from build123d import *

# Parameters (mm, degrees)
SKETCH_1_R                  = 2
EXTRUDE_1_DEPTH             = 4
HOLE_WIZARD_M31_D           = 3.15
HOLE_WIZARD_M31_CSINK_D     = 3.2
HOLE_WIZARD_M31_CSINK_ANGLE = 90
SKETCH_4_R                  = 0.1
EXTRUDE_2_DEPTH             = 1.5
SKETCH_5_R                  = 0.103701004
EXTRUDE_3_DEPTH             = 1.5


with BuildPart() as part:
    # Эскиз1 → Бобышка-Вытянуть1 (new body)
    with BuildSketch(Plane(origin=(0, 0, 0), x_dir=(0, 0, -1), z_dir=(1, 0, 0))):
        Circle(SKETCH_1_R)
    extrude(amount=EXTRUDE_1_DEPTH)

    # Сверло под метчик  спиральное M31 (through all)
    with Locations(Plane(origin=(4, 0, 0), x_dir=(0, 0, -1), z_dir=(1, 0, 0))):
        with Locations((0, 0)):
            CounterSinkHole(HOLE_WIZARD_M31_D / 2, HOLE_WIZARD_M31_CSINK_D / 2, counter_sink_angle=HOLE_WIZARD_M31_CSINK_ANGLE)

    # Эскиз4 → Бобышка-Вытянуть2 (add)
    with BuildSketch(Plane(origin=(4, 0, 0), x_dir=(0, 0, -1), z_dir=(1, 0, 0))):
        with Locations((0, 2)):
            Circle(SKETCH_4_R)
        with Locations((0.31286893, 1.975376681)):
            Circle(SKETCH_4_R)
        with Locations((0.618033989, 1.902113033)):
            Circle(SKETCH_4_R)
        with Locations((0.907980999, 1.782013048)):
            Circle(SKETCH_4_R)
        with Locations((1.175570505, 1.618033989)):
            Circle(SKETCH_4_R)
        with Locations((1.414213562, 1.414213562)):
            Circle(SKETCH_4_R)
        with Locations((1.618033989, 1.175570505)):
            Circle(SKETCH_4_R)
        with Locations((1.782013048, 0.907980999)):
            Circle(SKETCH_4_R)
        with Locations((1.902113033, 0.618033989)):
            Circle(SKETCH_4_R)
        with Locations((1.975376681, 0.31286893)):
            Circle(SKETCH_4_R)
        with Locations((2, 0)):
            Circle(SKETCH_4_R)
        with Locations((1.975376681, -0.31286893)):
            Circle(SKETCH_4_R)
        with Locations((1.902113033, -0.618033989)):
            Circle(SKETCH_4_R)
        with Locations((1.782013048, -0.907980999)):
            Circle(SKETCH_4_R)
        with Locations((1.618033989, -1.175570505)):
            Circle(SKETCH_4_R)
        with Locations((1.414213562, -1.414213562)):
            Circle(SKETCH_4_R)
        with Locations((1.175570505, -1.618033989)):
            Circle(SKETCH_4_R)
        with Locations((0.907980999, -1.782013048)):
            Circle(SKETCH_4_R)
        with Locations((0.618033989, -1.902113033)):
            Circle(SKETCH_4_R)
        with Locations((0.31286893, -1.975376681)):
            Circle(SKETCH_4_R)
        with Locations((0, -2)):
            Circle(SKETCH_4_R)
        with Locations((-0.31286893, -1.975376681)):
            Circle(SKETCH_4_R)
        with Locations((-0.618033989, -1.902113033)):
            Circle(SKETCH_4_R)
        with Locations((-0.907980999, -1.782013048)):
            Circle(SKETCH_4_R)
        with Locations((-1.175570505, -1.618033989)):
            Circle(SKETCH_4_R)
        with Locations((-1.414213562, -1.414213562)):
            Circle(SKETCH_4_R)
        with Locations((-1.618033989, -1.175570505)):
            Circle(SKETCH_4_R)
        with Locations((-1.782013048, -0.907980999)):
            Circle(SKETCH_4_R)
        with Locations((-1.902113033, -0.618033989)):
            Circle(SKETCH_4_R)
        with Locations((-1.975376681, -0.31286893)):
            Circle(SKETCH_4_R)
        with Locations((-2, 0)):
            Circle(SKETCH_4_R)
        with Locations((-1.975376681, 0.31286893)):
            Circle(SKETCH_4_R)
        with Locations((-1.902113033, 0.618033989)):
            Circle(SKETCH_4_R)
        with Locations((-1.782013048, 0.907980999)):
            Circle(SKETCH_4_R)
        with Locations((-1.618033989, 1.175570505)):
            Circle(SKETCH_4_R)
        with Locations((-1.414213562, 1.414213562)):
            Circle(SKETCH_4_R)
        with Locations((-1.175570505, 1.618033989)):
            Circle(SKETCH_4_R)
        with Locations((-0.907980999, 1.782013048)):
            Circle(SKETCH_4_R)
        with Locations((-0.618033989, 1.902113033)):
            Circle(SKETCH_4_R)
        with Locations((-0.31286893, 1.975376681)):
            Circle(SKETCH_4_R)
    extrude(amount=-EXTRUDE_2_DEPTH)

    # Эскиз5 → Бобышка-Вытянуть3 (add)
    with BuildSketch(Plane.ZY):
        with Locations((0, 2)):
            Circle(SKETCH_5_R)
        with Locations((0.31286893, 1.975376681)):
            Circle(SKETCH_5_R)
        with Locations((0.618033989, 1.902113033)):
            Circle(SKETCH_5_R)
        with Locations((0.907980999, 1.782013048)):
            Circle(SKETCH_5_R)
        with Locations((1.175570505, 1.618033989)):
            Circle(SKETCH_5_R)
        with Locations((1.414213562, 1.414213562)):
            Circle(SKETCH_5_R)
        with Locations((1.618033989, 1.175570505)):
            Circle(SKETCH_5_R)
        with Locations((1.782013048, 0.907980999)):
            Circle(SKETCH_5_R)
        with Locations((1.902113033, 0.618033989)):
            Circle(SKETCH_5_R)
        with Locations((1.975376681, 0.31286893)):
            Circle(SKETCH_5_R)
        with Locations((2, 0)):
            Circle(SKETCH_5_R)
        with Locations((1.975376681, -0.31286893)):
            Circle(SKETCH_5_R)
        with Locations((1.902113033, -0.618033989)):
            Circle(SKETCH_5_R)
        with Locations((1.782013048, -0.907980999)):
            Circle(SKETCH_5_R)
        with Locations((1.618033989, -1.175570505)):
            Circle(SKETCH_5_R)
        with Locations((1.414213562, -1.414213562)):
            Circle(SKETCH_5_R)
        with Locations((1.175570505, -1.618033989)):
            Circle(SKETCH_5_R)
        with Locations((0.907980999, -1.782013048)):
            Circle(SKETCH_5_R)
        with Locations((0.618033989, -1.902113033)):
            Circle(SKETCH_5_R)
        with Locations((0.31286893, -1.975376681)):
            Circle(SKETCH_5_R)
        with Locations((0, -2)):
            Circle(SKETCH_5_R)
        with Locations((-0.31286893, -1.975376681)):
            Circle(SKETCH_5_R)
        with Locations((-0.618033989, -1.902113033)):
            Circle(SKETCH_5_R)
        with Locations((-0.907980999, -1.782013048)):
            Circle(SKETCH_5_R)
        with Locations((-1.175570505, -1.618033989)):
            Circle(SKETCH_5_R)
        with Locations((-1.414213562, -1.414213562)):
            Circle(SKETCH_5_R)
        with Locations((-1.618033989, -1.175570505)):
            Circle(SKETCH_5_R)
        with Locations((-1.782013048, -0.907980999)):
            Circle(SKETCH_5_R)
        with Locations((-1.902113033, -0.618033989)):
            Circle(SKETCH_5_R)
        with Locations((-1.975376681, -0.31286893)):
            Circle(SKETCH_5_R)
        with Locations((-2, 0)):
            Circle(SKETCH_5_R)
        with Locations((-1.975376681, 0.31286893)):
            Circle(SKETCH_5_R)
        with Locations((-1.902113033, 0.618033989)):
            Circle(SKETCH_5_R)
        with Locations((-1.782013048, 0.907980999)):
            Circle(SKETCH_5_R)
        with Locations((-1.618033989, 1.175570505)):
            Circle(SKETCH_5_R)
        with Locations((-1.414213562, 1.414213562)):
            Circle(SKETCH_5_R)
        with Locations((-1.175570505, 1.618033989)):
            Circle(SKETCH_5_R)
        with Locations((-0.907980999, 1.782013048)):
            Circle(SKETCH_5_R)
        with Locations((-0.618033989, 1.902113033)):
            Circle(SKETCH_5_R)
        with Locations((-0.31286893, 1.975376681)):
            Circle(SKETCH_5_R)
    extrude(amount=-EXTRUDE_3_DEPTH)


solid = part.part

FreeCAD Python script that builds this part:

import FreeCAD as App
import Part
import Sketcher
from FreeCAD import Vector

doc = App.newDocument("Part")
body = doc.addObject("PartDesign::Body", "Body")

# Sketch on YZ plane
sketch1 = body.newObject("Sketcher::SketchObject", "Sketch")
sketch1.AttachmentSupport = (doc.getObject("YZ_Plane"), [""])
sketch1.MapMode = "FlatFace"
sketch1.addGeometry(Part.Circle(Vector(0, 0, 0), Vector(0, 0, 1), 2), False)
sketch1.addConstraint(Sketcher.Constraint("Coincident", 0, 3, -1, 1))
sketch1.addConstraint(Sketcher.Constraint("Diameter", 0, 4.0))
pad1 = body.newObject("PartDesign::Pad", "Pad")
pad1.Profile = sketch1
pad1.Length = 4

# Sketch on YZ plane
sketch2 = body.newObject("Sketcher::SketchObject", "Sketch001")
sketch2.AttachmentSupport = (doc.getObject("YZ_Plane"), [""])
sketch2.MapMode = "FlatFace"
sketch2.AttachmentOffset = App.Placement(Vector(0, 0, 4), App.Rotation())
sketch2.addGeometry(Part.Circle(Vector(0, 0, 0), Vector(0, 0, 1), 1.575), False)
sketch2.addConstraint(Sketcher.Constraint("Coincident", 0, 3, -1, 1))
sketch2.addConstraint(Sketcher.Constraint("Diameter", 0, 3.15))
doc.recompute()
hole = body.newObject("PartDesign::Hole", "Hole")
hole.Profile = sketch2
hole.ThreadType = "None"
hole.Diameter = 3.15
hole.DepthType = "ThroughAll"
hole.HoleCutType = "Countersink"
hole.HoleCutDiameter = 3.2
hole.HoleCutCountersinkAngle = 90

# Sketch on YZ plane
sketch3 = body.newObject("Sketcher::SketchObject", "Sketch002")
sketch3.AttachmentSupport = (doc.getObject("YZ_Plane"), [""])
sketch3.MapMode = "FlatFace"
sketch3.AttachmentOffset = App.Placement(Vector(0, 0, 4), App.Rotation())
sketch3.addGeometry(Part.Circle(Vector(2, 0, 0), Vector(0, 0, 1), 0.1), False)
sketch3.addGeometry(Part.Circle(Vector(1.975377, -0.312869, 0), Vector(0, 0, 1), 0.1), False)
sketch3.addGeometry(Part.Circle(Vector(1.902113, -0.618034, 0), Vector(0, 0, 1), 0.1), False)
sketch3.addGeometry(Part.Circle(Vector(1.782013, -0.907981, 0), Vector(0, 0, 1), 0.1), False)
sketch3.addGeometry(Part.Circle(Vector(1.618034, -1.175571, 0), Vector(0, 0, 1), 0.1), False)
sketch3.addGeometry(Part.Circle(Vector(1.414214, -1.414214, 0), Vector(0, 0, 1), 0.1), False)
sketch3.addGeometry(Part.Circle(Vector(1.175571, -1.618034, 0), Vector(0, 0, 1), 0.1), False)
sketch3.addGeometry(Part.Circle(Vector(0.907981, -1.782013, 0), Vector(0, 0, 1), 0.1), False)
sketch3.addGeometry(Part.Circle(Vector(0.618034, -1.902113, 0), Vector(0, 0, 1), 0.1), False)
sketch3.addGeometry(Part.Circle(Vector(0.312869, -1.975377, 0), Vector(0, 0, 1), 0.1), False)
sketch3.addGeometry(Part.Circle(Vector(0, -2, 0), Vector(0, 0, 1), 0.1), False)
sketch3.addGeometry(Part.Circle(Vector(-0.312869, -1.975377, 0), Vector(0, 0, 1), 0.1), False)
sketch3.addGeometry(Part.Circle(Vector(-0.618034, -1.902113, 0), Vector(0, 0, 1), 0.1), False)
sketch3.addGeometry(Part.Circle(Vector(-0.907981, -1.782013, 0), Vector(0, 0, 1), 0.1), False)
sketch3.addGeometry(Part.Circle(Vector(-1.175571, -1.618034, 0), Vector(0, 0, 1), 0.1), False)
sketch3.addGeometry(Part.Circle(Vector(-1.414214, -1.414214, 0), Vector(0, 0, 1), 0.1), False)
sketch3.addGeometry(Part.Circle(Vector(-1.618034, -1.175571, 0), Vector(0, 0, 1), 0.1), False)
sketch3.addGeometry(Part.Circle(Vector(-1.782013, -0.907981, 0), Vector(0, 0, 1), 0.1), False)
sketch3.addGeometry(Part.Circle(Vector(-1.902113, -0.618034, 0), Vector(0, 0, 1), 0.1), False)
sketch3.addGeometry(Part.Circle(Vector(-1.975377, -0.312869, 0), Vector(0, 0, 1), 0.1), False)
sketch3.addGeometry(Part.Circle(Vector(-2, 0, 0), Vector(0, 0, 1), 0.1), False)
sketch3.addGeometry(Part.Circle(Vector(-1.975377, 0.312869, 0), Vector(0, 0, 1), 0.1), False)
sketch3.addGeometry(Part.Circle(Vector(-1.902113, 0.618034, 0), Vector(0, 0, 1), 0.1), False)
sketch3.addGeometry(Part.Circle(Vector(-1.782013, 0.907981, 0), Vector(0, 0, 1), 0.1), False)
sketch3.addGeometry(Part.Circle(Vector(-1.618034, 1.175571, 0), Vector(0, 0, 1), 0.1), False)
sketch3.addGeometry(Part.Circle(Vector(-1.414214, 1.414214, 0), Vector(0, 0, 1), 0.1), False)
sketch3.addGeometry(Part.Circle(Vector(-1.175571, 1.618034, 0), Vector(0, 0, 1), 0.1), False)
sketch3.addGeometry(Part.Circle(Vector(-0.907981, 1.782013, 0), Vector(0, 0, 1), 0.1), False)
sketch3.addGeometry(Part.Circle(Vector(-0.618034, 1.902113, 0), Vector(0, 0, 1), 0.1), False)
sketch3.addGeometry(Part.Circle(Vector(-0.312869, 1.975377, 0), Vector(0, 0, 1), 0.1), False)
sketch3.addGeometry(Part.Circle(Vector(0, 2, 0), Vector(0, 0, 1), 0.1), False)
sketch3.addGeometry(Part.Circle(Vector(0.312869, 1.975377, 0), Vector(0, 0, 1), 0.1), False)
sketch3.addGeometry(Part.Circle(Vector(0.618034, 1.902113, 0), Vector(0, 0, 1), 0.1), False)
sketch3.addGeometry(Part.Circle(Vector(0.907981, 1.782013, 0), Vector(0, 0, 1), 0.1), False)
sketch3.addGeometry(Part.Circle(Vector(1.175571, 1.618034, 0), Vector(0, 0, 1), 0.1), False)
sketch3.addGeometry(Part.Circle(Vector(1.414214, 1.414214, 0), Vector(0, 0, 1), 0.1), False)
sketch3.addGeometry(Part.Circle(Vector(1.618034, 1.175571, 0), Vector(0, 0, 1), 0.1), False)
sketch3.addGeometry(Part.Circle(Vector(1.782013, 0.907981, 0), Vector(0, 0, 1), 0.1), False)
sketch3.addGeometry(Part.Circle(Vector(1.902113, 0.618034, 0), Vector(0, 0, 1), 0.1), False)
sketch3.addGeometry(Part.Circle(Vector(1.975377, 0.312869, 0), Vector(0, 0, 1), 0.1), False)
sketch3.addConstraint(Sketcher.Constraint("Equal", 0, 1))
sketch3.addConstraint(Sketcher.Constraint("Equal", 1, 2))
sketch3.addConstraint(Sketcher.Constraint("Equal", 2, 3))
sketch3.addConstraint(Sketcher.Constraint("Equal", 3, 4))
sketch3.addConstraint(Sketcher.Constraint("Equal", 4, 5))
sketch3.addConstraint(Sketcher.Constraint("Equal", 5, 6))
sketch3.addConstraint(Sketcher.Constraint("Equal", 6, 7))
sketch3.addConstraint(Sketcher.Constraint("Equal", 7, 8))
sketch3.addConstraint(Sketcher.Constraint("Equal", 8, 9))
sketch3.addConstraint(Sketcher.Constraint("Equal", 9, 10))
sketch3.addConstraint(Sketcher.Constraint("Equal", 10, 11))
sketch3.addConstraint(Sketcher.Constraint("Equal", 11, 12))
sketch3.addConstraint(Sketcher.Constraint("Equal", 12, 13))
sketch3.addConstraint(Sketcher.Constraint("Equal", 13, 14))
sketch3.addConstraint(Sketcher.Constraint("Equal", 14, 15))
sketch3.addConstraint(Sketcher.Constraint("Equal", 15, 16))
sketch3.addConstraint(Sketcher.Constraint("Equal", 16, 17))
sketch3.addConstraint(Sketcher.Constraint("Equal", 17, 18))
sketch3.addConstraint(Sketcher.Constraint("Equal", 18, 19))
sketch3.addConstraint(Sketcher.Constraint("Equal", 19, 20))
sketch3.addConstraint(Sketcher.Constraint("Equal", 20, 21))
sketch3.addConstraint(Sketcher.Constraint("Equal", 21, 22))
sketch3.addConstraint(Sketcher.Constraint("Equal", 22, 23))
sketch3.addConstraint(Sketcher.Constraint("Equal", 23, 24))
sketch3.addConstraint(Sketcher.Constraint("Equal", 24, 25))
sketch3.addConstraint(Sketcher.Constraint("Equal", 25, 26))
sketch3.addConstraint(Sketcher.Constraint("Equal", 26, 27))
sketch3.addConstraint(Sketcher.Constraint("Equal", 27, 28))
sketch3.addConstraint(Sketcher.Constraint("Equal", 28, 29))
sketch3.addConstraint(Sketcher.Constraint("Equal", 29, 30))
sketch3.addConstraint(Sketcher.Constraint("Equal", 30, 31))
sketch3.addConstraint(Sketcher.Constraint("Equal", 31, 32))
sketch3.addConstraint(Sketcher.Constraint("Equal", 32, 33))
sketch3.addConstraint(Sketcher.Constraint("Equal", 33, 34))
sketch3.addConstraint(Sketcher.Constraint("Equal", 34, 35))
sketch3.addConstraint(Sketcher.Constraint("Equal", 35, 36))
sketch3.addConstraint(Sketcher.Constraint("Equal", 36, 37))
sketch3.addConstraint(Sketcher.Constraint("Equal", 37, 38))
sketch3.addConstraint(Sketcher.Constraint("Equal", 38, 39))
sketch3.addConstraint(Sketcher.Constraint("Symmetric", 0, 3, 20, 3, -1, 1))
sketch3.addConstraint(Sketcher.Constraint("Symmetric", 1, 3, 21, 3, -1, 1))
sketch3.addConstraint(Sketcher.Constraint("Symmetric", 2, 3, 22, 3, -1, 1))
sketch3.addConstraint(Sketcher.Constraint("Symmetric", 3, 3, 23, 3, -1, 1))
sketch3.addConstraint(Sketcher.Constraint("Symmetric", 4, 3, 24, 3, -1, 1))
sketch3.addConstraint(Sketcher.Constraint("Symmetric", 5, 3, 25, 3, -1, 1))
sketch3.addConstraint(Sketcher.Constraint("Symmetric", 6, 3, 26, 3, -1, 1))
sketch3.addConstraint(Sketcher.Constraint("Symmetric", 7, 3, 27, 3, -1, 1))
sketch3.addConstraint(Sketcher.Constraint("Symmetric", 8, 3, 28, 3, -1, 1))
sketch3.addConstraint(Sketcher.Constraint("Symmetric", 9, 3, 29, 3, -1, 1))
sketch3.addConstraint(Sketcher.Constraint("Symmetric", 10, 3, 30, 3, -1, 1))
sketch3.addConstraint(Sketcher.Constraint("Symmetric", 11, 3, 31, 3, -1, 1))
sketch3.addConstraint(Sketcher.Constraint("Symmetric", 12, 3, 32, 3, -1, 1))
sketch3.addConstraint(Sketcher.Constraint("Symmetric", 13, 3, 33, 3, -1, 1))
sketch3.addConstraint(Sketcher.Constraint("Symmetric", 14, 3, 34, 3, -1, 1))
sketch3.addConstraint(Sketcher.Constraint("Symmetric", 15, 3, 35, 3, -1, 1))
sketch3.addConstraint(Sketcher.Constraint("Symmetric", 16, 3, 36, 3, -1, 1))
sketch3.addConstraint(Sketcher.Constraint("Symmetric", 17, 3, 37, 3, -1, 1))
sketch3.addConstraint(Sketcher.Constraint("Symmetric", 18, 3, 38, 3, -1, 1))
sketch3.addConstraint(Sketcher.Constraint("Symmetric", 19, 3, 39, 3, -1, 1))
sketch3.addConstraint(Sketcher.Constraint("Symmetric", 9, 3, 11, 3, -2))
sketch3.addConstraint(Sketcher.Constraint("Symmetric", 8, 3, 12, 3, -2))
sketch3.addConstraint(Sketcher.Constraint("Symmetric", 7, 3, 13, 3, -2))
sketch3.addConstraint(Sketcher.Constraint("Symmetric", 6, 3, 14, 3, -2))
sketch3.addConstraint(Sketcher.Constraint("Symmetric", 5, 3, 15, 3, -2))
sketch3.addConstraint(Sketcher.Constraint("Symmetric", 4, 3, 16, 3, -2))
sketch3.addConstraint(Sketcher.Constraint("Symmetric", 3, 3, 17, 3, -2))
sketch3.addConstraint(Sketcher.Constraint("Symmetric", 2, 3, 18, 3, -2))
sketch3.addConstraint(Sketcher.Constraint("Symmetric", 1, 3, 19, 3, -2))
sketch3.addConstraint(Sketcher.Constraint("PointOnObject", 0, 3, -1))
sketch3.addConstraint(Sketcher.Constraint("PointOnObject", 10, 3, -2))
sketch3.addConstraint(Sketcher.Constraint("Diameter", 0, 0.2))
sketch3.addConstraint(Sketcher.Constraint("DistanceX", -1, 1, 0, 3, 2.0))
sketch3.addConstraint(Sketcher.Constraint("DistanceY", 10, 3, -1, 1, 2.0))
sketch3.addConstraint(Sketcher.Constraint("DistanceY", 6, 3, 2, 3, 1.0))
sketch3.addConstraint(Sketcher.Constraint("DistanceX", 8, 3, 4, 3, 1.0))
sketch3.addConstraint(Sketcher.Constraint("DistanceX", 3, 3, 2, 3, 0.1201))
sketch3.addConstraint(Sketcher.Constraint("DistanceY", 4, 3, 1, 3, 0.862702))
sketch3.addConstraint(Sketcher.Constraint("DistanceX", 5, 3, 3, 3, 0.367799))
sketch3.addConstraint(Sketcher.Constraint("DistanceY", 7, 3, 5, 3, 0.367799))
sketch3.addConstraint(Sketcher.Constraint("DistanceY", 8, 3, 7, 3, 0.1201))
sketch3.addConstraint(Sketcher.Constraint("DistanceX", 9, 3, 6, 3, 0.862702))
sketch3.addConstraint(Sketcher.Constraint("DistanceY", 1, 3, -1, 1, 0.312869))
sketch3.addConstraint(Sketcher.Constraint("DistanceY", 3, 3, -1, 1, 0.907981))
sketch3.addConstraint(Sketcher.Constraint("DistanceX", -1, 1, 6, 3, 1.175571))
sketch3.addConstraint(Sketcher.Constraint("DistanceX", -1, 1, 7, 3, 0.907981))
sketch3.addConstraint(Sketcher.Constraint("DistanceX", 4, 3, 3, 3, 0.163979))
sketch3.addConstraint(Sketcher.Constraint("DistanceY", 5, 3, 2, 3, 0.79618))
sketch3.addConstraint(Sketcher.Constraint("DistanceX", -1, 1, 1, 3, 1.975377))
sketch3.addConstraint(Sketcher.Constraint("DistanceX", -1, 1, 2, 3, 1.902113))
sketch3.addConstraint(Sketcher.Constraint("DistanceY", 2, 3, -1, 1, 0.618034))
sketch3.addConstraint(Sketcher.Constraint("DistanceY", 9, 3, -1, 1, 1.975377))
pad2 = body.newObject("PartDesign::Pad", "Pad001")
pad2.Profile = sketch3
pad2.Length = 1.5
pad2.Reversed = True

# Sketch on YZ plane
sketch4 = body.newObject("Sketcher::SketchObject", "Sketch003")
sketch4.AttachmentSupport = (doc.getObject("YZ_Plane"), [""])
sketch4.MapMode = "FlatFace"
sketch4.addGeometry(Part.Circle(Vector(2, 0, 0), Vector(0, 0, 1), 0.103701), False)
sketch4.addGeometry(Part.Circle(Vector(1.975377, 0.312869, 0), Vector(0, 0, 1), 0.103701), False)
sketch4.addGeometry(Part.Circle(Vector(1.902113, 0.618034, 0), Vector(0, 0, 1), 0.103701), False)
sketch4.addGeometry(Part.Circle(Vector(1.782013, 0.907981, 0), Vector(0, 0, 1), 0.103701), False)
sketch4.addGeometry(Part.Circle(Vector(1.618034, 1.175571, 0), Vector(0, 0, 1), 0.103701), False)
sketch4.addGeometry(Part.Circle(Vector(1.414214, 1.414214, 0), Vector(0, 0, 1), 0.103701), False)
sketch4.addGeometry(Part.Circle(Vector(1.175571, 1.618034, 0), Vector(0, 0, 1), 0.103701), False)
sketch4.addGeometry(Part.Circle(Vector(0.907981, 1.782013, 0), Vector(0, 0, 1), 0.103701), False)
sketch4.addGeometry(Part.Circle(Vector(0.618034, 1.902113, 0), Vector(0, 0, 1), 0.103701), False)
sketch4.addGeometry(Part.Circle(Vector(0.312869, 1.975377, 0), Vector(0, 0, 1), 0.103701), False)
sketch4.addGeometry(Part.Circle(Vector(0, 2, 0), Vector(0, 0, 1), 0.103701), False)
sketch4.addGeometry(Part.Circle(Vector(-0.312869, 1.975377, 0), Vector(0, 0, 1), 0.103701), False)
sketch4.addGeometry(Part.Circle(Vector(-0.618034, 1.902113, 0), Vector(0, 0, 1), 0.103701), False)
sketch4.addGeometry(Part.Circle(Vector(-0.907981, 1.782013, 0), Vector(0, 0, 1), 0.103701), False)
sketch4.addGeometry(Part.Circle(Vector(-1.175571, 1.618034, 0), Vector(0, 0, 1), 0.103701), False)
sketch4.addGeometry(Part.Circle(Vector(-1.414214, 1.414214, 0), Vector(0, 0, 1), 0.103701), False)
sketch4.addGeometry(Part.Circle(Vector(-1.618034, 1.175571, 0), Vector(0, 0, 1), 0.103701), False)
sketch4.addGeometry(Part.Circle(Vector(-1.782013, 0.907981, 0), Vector(0, 0, 1), 0.103701), False)
sketch4.addGeometry(Part.Circle(Vector(-1.902113, 0.618034, 0), Vector(0, 0, 1), 0.103701), False)
sketch4.addGeometry(Part.Circle(Vector(-1.975377, 0.312869, 0), Vector(0, 0, 1), 0.103701), False)
sketch4.addGeometry(Part.Circle(Vector(-2, 0, 0), Vector(0, 0, 1), 0.103701), False)
sketch4.addGeometry(Part.Circle(Vector(-1.975377, -0.312869, 0), Vector(0, 0, 1), 0.103701), False)
sketch4.addGeometry(Part.Circle(Vector(-1.902113, -0.618034, 0), Vector(0, 0, 1), 0.103701), False)
sketch4.addGeometry(Part.Circle(Vector(-1.782013, -0.907981, 0), Vector(0, 0, 1), 0.103701), False)
sketch4.addGeometry(Part.Circle(Vector(-1.618034, -1.175571, 0), Vector(0, 0, 1), 0.103701), False)
sketch4.addGeometry(Part.Circle(Vector(-1.414214, -1.414214, 0), Vector(0, 0, 1), 0.103701), False)
sketch4.addGeometry(Part.Circle(Vector(-1.175571, -1.618034, 0), Vector(0, 0, 1), 0.103701), False)
sketch4.addGeometry(Part.Circle(Vector(-0.907981, -1.782013, 0), Vector(0, 0, 1), 0.103701), False)
sketch4.addGeometry(Part.Circle(Vector(-0.618034, -1.902113, 0), Vector(0, 0, 1), 0.103701), False)
sketch4.addGeometry(Part.Circle(Vector(-0.312869, -1.975377, 0), Vector(0, 0, 1), 0.103701), False)
sketch4.addGeometry(Part.Circle(Vector(0, -2, 0), Vector(0, 0, 1), 0.103701), False)
sketch4.addGeometry(Part.Circle(Vector(0.312869, -1.975377, 0), Vector(0, 0, 1), 0.103701), False)
sketch4.addGeometry(Part.Circle(Vector(0.618034, -1.902113, 0), Vector(0, 0, 1), 0.103701), False)
sketch4.addGeometry(Part.Circle(Vector(0.907981, -1.782013, 0), Vector(0, 0, 1), 0.103701), False)
sketch4.addGeometry(Part.Circle(Vector(1.175571, -1.618034, 0), Vector(0, 0, 1), 0.103701), False)
sketch4.addGeometry(Part.Circle(Vector(1.414214, -1.414214, 0), Vector(0, 0, 1), 0.103701), False)
sketch4.addGeometry(Part.Circle(Vector(1.618034, -1.175571, 0), Vector(0, 0, 1), 0.103701), False)
sketch4.addGeometry(Part.Circle(Vector(1.782013, -0.907981, 0), Vector(0, 0, 1), 0.103701), False)
sketch4.addGeometry(Part.Circle(Vector(1.902113, -0.618034, 0), Vector(0, 0, 1), 0.103701), False)
sketch4.addGeometry(Part.Circle(Vector(1.975377, -0.312869, 0), Vector(0, 0, 1), 0.103701), False)
sketch4.addConstraint(Sketcher.Constraint("Equal", 0, 1))
sketch4.addConstraint(Sketcher.Constraint("Equal", 1, 2))
sketch4.addConstraint(Sketcher.Constraint("Equal", 2, 3))
sketch4.addConstraint(Sketcher.Constraint("Equal", 3, 4))
sketch4.addConstraint(Sketcher.Constraint("Equal", 4, 5))
sketch4.addConstraint(Sketcher.Constraint("Equal", 5, 6))
sketch4.addConstraint(Sketcher.Constraint("Equal", 6, 7))
sketch4.addConstraint(Sketcher.Constraint("Equal", 7, 8))
sketch4.addConstraint(Sketcher.Constraint("Equal", 8, 9))
sketch4.addConstraint(Sketcher.Constraint("Equal", 9, 10))
sketch4.addConstraint(Sketcher.Constraint("Equal", 10, 11))
sketch4.addConstraint(Sketcher.Constraint("Equal", 11, 12))
sketch4.addConstraint(Sketcher.Constraint("Equal", 12, 13))
sketch4.addConstraint(Sketcher.Constraint("Equal", 13, 14))
sketch4.addConstraint(Sketcher.Constraint("Equal", 14, 15))
sketch4.addConstraint(Sketcher.Constraint("Equal", 15, 16))
sketch4.addConstraint(Sketcher.Constraint("Equal", 16, 17))
sketch4.addConstraint(Sketcher.Constraint("Equal", 17, 18))
sketch4.addConstraint(Sketcher.Constraint("Equal", 18, 19))
sketch4.addConstraint(Sketcher.Constraint("Equal", 19, 20))
sketch4.addConstraint(Sketcher.Constraint("Equal", 20, 21))
sketch4.addConstraint(Sketcher.Constraint("Equal", 21, 22))
sketch4.addConstraint(Sketcher.Constraint("Equal", 22, 23))
sketch4.addConstraint(Sketcher.Constraint("Equal", 23, 24))
sketch4.addConstraint(Sketcher.Constraint("Equal", 24, 25))
sketch4.addConstraint(Sketcher.Constraint("Equal", 25, 26))
sketch4.addConstraint(Sketcher.Constraint("Equal", 26, 27))
sketch4.addConstraint(Sketcher.Constraint("Equal", 27, 28))
sketch4.addConstraint(Sketcher.Constraint("Equal", 28, 29))
sketch4.addConstraint(Sketcher.Constraint("Equal", 29, 30))
sketch4.addConstraint(Sketcher.Constraint("Equal", 30, 31))
sketch4.addConstraint(Sketcher.Constraint("Equal", 31, 32))
sketch4.addConstraint(Sketcher.Constraint("Equal", 32, 33))
sketch4.addConstraint(Sketcher.Constraint("Equal", 33, 34))
sketch4.addConstraint(Sketcher.Constraint("Equal", 34, 35))
sketch4.addConstraint(Sketcher.Constraint("Equal", 35, 36))
sketch4.addConstraint(Sketcher.Constraint("Equal", 36, 37))
sketch4.addConstraint(Sketcher.Constraint("Equal", 37, 38))
sketch4.addConstraint(Sketcher.Constraint("Equal", 38, 39))
sketch4.addConstraint(Sketcher.Constraint("Symmetric", 0, 3, 20, 3, -1, 1))
sketch4.addConstraint(Sketcher.Constraint("Symmetric", 1, 3, 21, 3, -1, 1))
sketch4.addConstraint(Sketcher.Constraint("Symmetric", 2, 3, 22, 3, -1, 1))
sketch4.addConstraint(Sketcher.Constraint("Symmetric", 3, 3, 23, 3, -1, 1))
sketch4.addConstraint(Sketcher.Constraint("Symmetric", 4, 3, 24, 3, -1, 1))
sketch4.addConstraint(Sketcher.Constraint("Symmetric", 5, 3, 25, 3, -1, 1))
sketch4.addConstraint(Sketcher.Constraint("Symmetric", 6, 3, 26, 3, -1, 1))
sketch4.addConstraint(Sketcher.Constraint("Symmetric", 7, 3, 27, 3, -1, 1))
sketch4.addConstraint(Sketcher.Constraint("Symmetric", 8, 3, 28, 3, -1, 1))
sketch4.addConstraint(Sketcher.Constraint("Symmetric", 9, 3, 29, 3, -1, 1))
sketch4.addConstraint(Sketcher.Constraint("Symmetric", 10, 3, 30, 3, -1, 1))
sketch4.addConstraint(Sketcher.Constraint("Symmetric", 11, 3, 31, 3, -1, 1))
sketch4.addConstraint(Sketcher.Constraint("Symmetric", 12, 3, 32, 3, -1, 1))
sketch4.addConstraint(Sketcher.Constraint("Symmetric", 13, 3, 33, 3, -1, 1))
sketch4.addConstraint(Sketcher.Constraint("Symmetric", 14, 3, 34, 3, -1, 1))
sketch4.addConstraint(Sketcher.Constraint("Symmetric", 15, 3, 35, 3, -1, 1))
sketch4.addConstraint(Sketcher.Constraint("Symmetric", 16, 3, 36, 3, -1, 1))
sketch4.addConstraint(Sketcher.Constraint("Symmetric", 17, 3, 37, 3, -1, 1))
sketch4.addConstraint(Sketcher.Constraint("Symmetric", 18, 3, 38, 3, -1, 1))
sketch4.addConstraint(Sketcher.Constraint("Symmetric", 19, 3, 39, 3, -1, 1))
sketch4.addConstraint(Sketcher.Constraint("Symmetric", 9, 3, 11, 3, -2))
sketch4.addConstraint(Sketcher.Constraint("Symmetric", 8, 3, 12, 3, -2))
sketch4.addConstraint(Sketcher.Constraint("Symmetric", 7, 3, 13, 3, -2))
sketch4.addConstraint(Sketcher.Constraint("Symmetric", 6, 3, 14, 3, -2))
sketch4.addConstraint(Sketcher.Constraint("Symmetric", 5, 3, 15, 3, -2))
sketch4.addConstraint(Sketcher.Constraint("Symmetric", 4, 3, 16, 3, -2))
sketch4.addConstraint(Sketcher.Constraint("Symmetric", 3, 3, 17, 3, -2))
sketch4.addConstraint(Sketcher.Constraint("Symmetric", 2, 3, 18, 3, -2))
sketch4.addConstraint(Sketcher.Constraint("Symmetric", 1, 3, 19, 3, -2))
sketch4.addConstraint(Sketcher.Constraint("PointOnObject", 0, 3, -1))
sketch4.addConstraint(Sketcher.Constraint("PointOnObject", 10, 3, -2))
sketch4.addConstraint(Sketcher.Constraint("DistanceX", -1, 1, 0, 3, 2.0))
sketch4.addConstraint(Sketcher.Constraint("DistanceY", -1, 1, 10, 3, 2.0))
sketch4.addConstraint(Sketcher.Constraint("DistanceY", 2, 3, 6, 3, 1.0))
sketch4.addConstraint(Sketcher.Constraint("DistanceX", 8, 3, 4, 3, 1.0))
sketch4.addConstraint(Sketcher.Constraint("Diameter", 0, 0.207402))
sketch4.addConstraint(Sketcher.Constraint("DistanceX", 3, 3, 2, 3, 0.1201))
sketch4.addConstraint(Sketcher.Constraint("DistanceY", 1, 3, 4, 3, 0.862702))
sketch4.addConstraint(Sketcher.Constraint("DistanceX", 5, 3, 3, 3, 0.367799))
sketch4.addConstraint(Sketcher.Constraint("DistanceY", 5, 3, 7, 3, 0.367799))
sketch4.addConstraint(Sketcher.Constraint("DistanceY", 7, 3, 8, 3, 0.1201))
sketch4.addConstraint(Sketcher.Constraint("DistanceX", 9, 3, 6, 3, 0.862702))
sketch4.addConstraint(Sketcher.Constraint("DistanceY", -1, 1, 1, 3, 0.312869))
sketch4.addConstraint(Sketcher.Constraint("DistanceY", -1, 1, 3, 3, 0.907981))
sketch4.addConstraint(Sketcher.Constraint("DistanceX", -1, 1, 6, 3, 1.175571))
sketch4.addConstraint(Sketcher.Constraint("DistanceX", -1, 1, 7, 3, 0.907981))
sketch4.addConstraint(Sketcher.Constraint("DistanceX", 4, 3, 3, 3, 0.163979))
sketch4.addConstraint(Sketcher.Constraint("DistanceY", 2, 3, 5, 3, 0.79618))
sketch4.addConstraint(Sketcher.Constraint("DistanceX", -1, 1, 1, 3, 1.975377))
sketch4.addConstraint(Sketcher.Constraint("DistanceX", -1, 1, 2, 3, 1.902113))
sketch4.addConstraint(Sketcher.Constraint("DistanceY", -1, 1, 2, 3, 0.618034))
sketch4.addConstraint(Sketcher.Constraint("DistanceY", -1, 1, 9, 3, 1.975377))
pad3 = body.newObject("PartDesign::Pad", "Pad002")
pad3.Profile = sketch4
pad3.Length = 1.5

doc.recompute()
